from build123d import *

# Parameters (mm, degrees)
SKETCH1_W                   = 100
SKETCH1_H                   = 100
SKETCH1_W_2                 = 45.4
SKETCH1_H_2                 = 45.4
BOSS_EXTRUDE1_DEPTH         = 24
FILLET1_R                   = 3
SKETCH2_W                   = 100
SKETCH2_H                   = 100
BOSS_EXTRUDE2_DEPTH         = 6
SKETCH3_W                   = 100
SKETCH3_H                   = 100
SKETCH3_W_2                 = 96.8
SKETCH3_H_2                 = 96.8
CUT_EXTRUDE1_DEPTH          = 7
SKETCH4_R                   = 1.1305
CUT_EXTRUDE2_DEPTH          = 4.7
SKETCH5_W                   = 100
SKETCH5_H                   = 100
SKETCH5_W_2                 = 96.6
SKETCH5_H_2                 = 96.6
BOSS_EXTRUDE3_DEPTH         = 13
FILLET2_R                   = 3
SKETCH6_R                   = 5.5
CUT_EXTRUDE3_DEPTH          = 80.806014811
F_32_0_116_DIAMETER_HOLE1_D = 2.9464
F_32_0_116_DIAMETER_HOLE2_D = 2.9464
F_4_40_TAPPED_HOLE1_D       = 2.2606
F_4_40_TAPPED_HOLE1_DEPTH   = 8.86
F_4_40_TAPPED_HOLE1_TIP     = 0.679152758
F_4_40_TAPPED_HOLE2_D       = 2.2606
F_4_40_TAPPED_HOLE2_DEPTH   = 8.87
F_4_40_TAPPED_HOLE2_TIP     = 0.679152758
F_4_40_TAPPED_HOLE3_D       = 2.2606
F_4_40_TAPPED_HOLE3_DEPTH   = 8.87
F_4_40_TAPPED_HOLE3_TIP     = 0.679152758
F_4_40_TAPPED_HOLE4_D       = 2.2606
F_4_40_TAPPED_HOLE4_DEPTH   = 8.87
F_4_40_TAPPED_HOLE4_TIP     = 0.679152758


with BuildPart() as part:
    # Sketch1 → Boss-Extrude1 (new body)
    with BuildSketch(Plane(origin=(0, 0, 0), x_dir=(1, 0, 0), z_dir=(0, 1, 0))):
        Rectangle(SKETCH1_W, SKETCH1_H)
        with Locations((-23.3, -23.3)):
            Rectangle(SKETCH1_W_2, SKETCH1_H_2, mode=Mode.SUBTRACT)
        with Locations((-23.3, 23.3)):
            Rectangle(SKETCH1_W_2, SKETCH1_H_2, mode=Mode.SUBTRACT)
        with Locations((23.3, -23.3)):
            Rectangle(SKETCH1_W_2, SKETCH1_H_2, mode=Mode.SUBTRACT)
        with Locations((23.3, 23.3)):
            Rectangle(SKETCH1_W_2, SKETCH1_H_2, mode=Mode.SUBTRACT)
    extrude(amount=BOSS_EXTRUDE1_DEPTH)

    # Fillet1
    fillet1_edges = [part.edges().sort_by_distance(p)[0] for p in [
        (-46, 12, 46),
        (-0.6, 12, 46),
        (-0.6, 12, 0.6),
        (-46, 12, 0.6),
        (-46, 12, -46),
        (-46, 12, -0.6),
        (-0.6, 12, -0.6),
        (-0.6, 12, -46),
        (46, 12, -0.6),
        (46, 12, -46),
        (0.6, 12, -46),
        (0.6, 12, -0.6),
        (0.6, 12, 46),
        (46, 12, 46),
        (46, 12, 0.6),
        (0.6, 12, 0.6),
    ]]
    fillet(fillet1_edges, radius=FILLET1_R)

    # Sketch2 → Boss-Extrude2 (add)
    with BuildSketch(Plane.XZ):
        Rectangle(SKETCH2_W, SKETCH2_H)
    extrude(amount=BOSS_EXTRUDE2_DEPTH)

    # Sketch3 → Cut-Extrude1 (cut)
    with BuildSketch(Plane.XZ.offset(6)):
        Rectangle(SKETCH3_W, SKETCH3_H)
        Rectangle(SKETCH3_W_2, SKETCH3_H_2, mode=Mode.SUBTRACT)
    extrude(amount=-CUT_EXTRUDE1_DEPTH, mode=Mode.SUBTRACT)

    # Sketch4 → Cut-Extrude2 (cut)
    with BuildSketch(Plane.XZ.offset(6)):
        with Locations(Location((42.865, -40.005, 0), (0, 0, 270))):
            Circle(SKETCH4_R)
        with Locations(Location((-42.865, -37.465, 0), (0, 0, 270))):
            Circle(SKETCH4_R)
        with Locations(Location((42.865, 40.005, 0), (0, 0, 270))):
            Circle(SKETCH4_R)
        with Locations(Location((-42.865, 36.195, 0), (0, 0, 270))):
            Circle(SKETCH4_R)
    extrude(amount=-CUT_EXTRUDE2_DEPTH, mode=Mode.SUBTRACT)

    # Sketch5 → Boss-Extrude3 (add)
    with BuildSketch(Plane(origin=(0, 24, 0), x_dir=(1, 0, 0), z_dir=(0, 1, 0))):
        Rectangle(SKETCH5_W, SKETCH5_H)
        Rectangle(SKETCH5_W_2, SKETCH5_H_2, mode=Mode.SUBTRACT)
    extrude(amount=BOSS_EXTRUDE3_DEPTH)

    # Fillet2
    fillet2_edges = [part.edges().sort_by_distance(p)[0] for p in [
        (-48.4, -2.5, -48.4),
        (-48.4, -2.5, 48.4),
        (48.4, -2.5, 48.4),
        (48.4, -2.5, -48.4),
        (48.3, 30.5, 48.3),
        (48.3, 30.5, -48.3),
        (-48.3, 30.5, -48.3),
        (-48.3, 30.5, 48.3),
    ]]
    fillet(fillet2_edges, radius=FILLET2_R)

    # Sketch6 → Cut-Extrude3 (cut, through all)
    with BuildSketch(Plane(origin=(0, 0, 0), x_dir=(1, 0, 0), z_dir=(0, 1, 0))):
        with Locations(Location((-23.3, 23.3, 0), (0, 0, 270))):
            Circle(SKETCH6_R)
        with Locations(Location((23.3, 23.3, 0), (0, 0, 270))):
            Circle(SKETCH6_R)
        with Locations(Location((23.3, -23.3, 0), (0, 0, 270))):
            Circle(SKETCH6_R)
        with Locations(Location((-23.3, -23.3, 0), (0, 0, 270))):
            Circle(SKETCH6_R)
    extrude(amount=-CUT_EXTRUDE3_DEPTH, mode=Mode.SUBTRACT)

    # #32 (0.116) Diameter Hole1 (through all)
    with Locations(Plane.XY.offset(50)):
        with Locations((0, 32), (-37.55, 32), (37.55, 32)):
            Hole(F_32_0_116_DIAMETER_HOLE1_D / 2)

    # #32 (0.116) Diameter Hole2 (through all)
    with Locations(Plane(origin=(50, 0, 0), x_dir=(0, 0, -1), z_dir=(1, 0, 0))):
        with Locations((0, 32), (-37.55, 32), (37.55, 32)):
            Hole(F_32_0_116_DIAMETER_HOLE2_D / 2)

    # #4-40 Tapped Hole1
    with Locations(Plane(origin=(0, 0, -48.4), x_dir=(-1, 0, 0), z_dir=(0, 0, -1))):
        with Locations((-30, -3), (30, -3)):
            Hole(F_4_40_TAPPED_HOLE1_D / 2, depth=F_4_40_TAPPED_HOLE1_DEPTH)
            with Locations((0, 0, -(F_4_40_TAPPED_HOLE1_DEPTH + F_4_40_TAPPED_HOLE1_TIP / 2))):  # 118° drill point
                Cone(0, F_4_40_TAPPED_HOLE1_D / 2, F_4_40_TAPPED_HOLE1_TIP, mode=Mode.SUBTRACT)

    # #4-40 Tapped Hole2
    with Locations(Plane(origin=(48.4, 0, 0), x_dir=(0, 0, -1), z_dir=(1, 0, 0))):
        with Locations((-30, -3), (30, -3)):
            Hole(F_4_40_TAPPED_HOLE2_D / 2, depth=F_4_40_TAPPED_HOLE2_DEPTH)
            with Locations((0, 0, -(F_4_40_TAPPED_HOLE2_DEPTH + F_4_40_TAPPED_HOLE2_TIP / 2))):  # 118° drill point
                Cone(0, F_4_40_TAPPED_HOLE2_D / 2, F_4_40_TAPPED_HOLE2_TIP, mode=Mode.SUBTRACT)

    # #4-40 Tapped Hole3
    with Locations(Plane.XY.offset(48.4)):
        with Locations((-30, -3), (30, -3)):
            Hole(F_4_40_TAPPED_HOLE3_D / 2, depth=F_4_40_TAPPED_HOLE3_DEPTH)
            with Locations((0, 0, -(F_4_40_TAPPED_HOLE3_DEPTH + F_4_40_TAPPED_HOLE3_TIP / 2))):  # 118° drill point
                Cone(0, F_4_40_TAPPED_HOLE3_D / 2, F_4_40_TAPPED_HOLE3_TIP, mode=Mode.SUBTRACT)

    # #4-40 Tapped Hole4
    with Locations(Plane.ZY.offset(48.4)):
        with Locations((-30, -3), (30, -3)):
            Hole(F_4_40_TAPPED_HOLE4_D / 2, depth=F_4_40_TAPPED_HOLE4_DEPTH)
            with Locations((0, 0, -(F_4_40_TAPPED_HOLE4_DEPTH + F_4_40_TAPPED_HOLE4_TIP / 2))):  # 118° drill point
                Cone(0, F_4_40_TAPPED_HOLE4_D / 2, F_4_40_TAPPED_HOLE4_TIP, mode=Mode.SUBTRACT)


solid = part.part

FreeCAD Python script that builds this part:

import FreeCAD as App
import Part
import Sketcher
Q = App.Units.Quantity


def edges_at(feature, points):
    """Names of the edges that pass closest to the given points."""
    edges = feature.Shape.Edges
    near = lambda p: min(range(len(edges)), key=lambda i: edges[i].distToShape(Part.Vertex(*p))[0])
    return sorted({f"Edge{near(p) + 1}" for p in points})


def add_polygon(sketch, points):
    """Adds a closed chain of lines whose ends are joined by coincident constraints."""
    first, n = sketch.GeometryCount, len(points)
    for a, b in zip(points, points[1:] + points[:1]):
        sketch.addGeometry(Part.LineSegment(App.Vector(*a, 0), App.Vector(*b, 0)), False)
    for i in range(n):
        sketch.addConstraint(Sketcher.Constraint("Coincident", first + i, 2, first + (i + 1) % n, 1))

doc = App.newDocument("Part")
body = doc.addObject("PartDesign::Body", "Body")

sketch1 = doc.addObject("Sketcher::SketchObject", "Sketch")
body.addObject(sketch1)
sketch1.AttachmentSupport = (doc.XZ_Plane, [""])
sketch1.MapMode = "FlatFace"
add_polygon(sketch1, [(-50, -50), (-50, 50), (50, 50), (50, -50)])
add_polygon(sketch1, [(-1, 46), (-46, 46), (-46, 1), (-1, 1)])
add_polygon(sketch1, [(46, 46), (1, 46), (1, 1), (46, 1)])
add_polygon(sketch1, [(-1, -1), (-46, -1), (-46, -46), (-1, -46)])
add_polygon(sketch1, [(46, -1), (1, -1), (1, -46), (46, -46)])
sketch1.addConstraint([
    Sketcher.Constraint("Vertical", 0),
    Sketcher.Constraint("Horizontal", 1),
    Sketcher.Constraint("Vertical", 2),
    Sketcher.Constraint("Horizontal", 3),
    Sketcher.Constraint("Horizontal", 4),
    Sketcher.Constraint("Vertical", 5),
    Sketcher.Constraint("Horizontal", 6),
    Sketcher.Constraint("Vertical", 7),
    Sketcher.Constraint("Horizontal", 8),
    Sketcher.Constraint("Vertical", 9),
    Sketcher.Constraint("Horizontal", 10),
    Sketcher.Constraint("Vertical", 11),
    Sketcher.Constraint("Horizontal", 12),
    Sketcher.Constraint("Vertical", 13),
    Sketcher.Constraint("Horizontal", 14),
    Sketcher.Constraint("Vertical", 15),
    Sketcher.Constraint("Horizontal", 16),
    Sketcher.Constraint("Vertical", 17),
    Sketcher.Constraint("Horizontal", 18),
    Sketcher.Constraint("Vertical", 19),
    Sketcher.Constraint("Symmetric", 0, 2, 2, 2, -1, 1),
    Sketcher.Constraint("Symmetric", 10, 2, 12, 2, -1, 1),
    Sketcher.Constraint("Symmetric", 8, 2, 14, 2, -1, 1),
    Sketcher.Constraint("Symmetric", 6, 2, 16, 2, -1, 1),
    Sketcher.Constraint("Symmetric", 4, 2, 18, 2, -1, 1),
    Sketcher.Constraint("Symmetric", 7, 2, 8, 2, -2),
    Sketcher.Constraint("Symmetric", 5, 2, 10, 2, -2),
    Sketcher.Constraint("Equal", 3, 0),
    Sketcher.Constraint("Equal", 18, 5),
    Sketcher.Constraint("DistanceX", 1, 1, 1, 2, Q("100 mm")),
    Sketcher.Constraint("DistanceX", 4, 2, 4, 1, Q("45.4 mm")),
    Sketcher.Constraint("DistanceX", 4, 2, -1, 1, Q("46 mm")),
    Sketcher.Constraint("DistanceY", -1, 1, 4, 2, Q("46 mm")),
])
pad1 = doc.addObject("PartDesign::Pad", "Pad")
body.addObject(pad1)
pad1.Profile = sketch1
pad1.Length = 24
pad1.Reversed = True
doc.recompute()

fillet = doc.addObject("PartDesign::Fillet", "Fillet")
body.addObject(fillet)
fillet.Base = (pad1, edges_at(pad1, [
    (-46, 12, 46),
    (-0.6, 12, 46),
    (-0.6, 12, 0.6),
    (-46, 12, 0.6),
    (-46, 12, -46),
    (-46, 12, -0.6),
    (-0.6, 12, -0.6),
    (-0.6, 12, -46),
    (46, 12, -0.6),
    (46, 12, -46),
    (0.6, 12, -46),
    (0.6, 12, -0.6),
    (0.6, 12, 46),
    (46, 12, 46),
    (46, 12, 0.6),
    (0.6, 12, 0.6),
]))
fillet.Radius = 3

sketch2 = doc.addObject("Sketcher::SketchObject", "Sketch001")
body.addObject(sketch2)
sketch2.AttachmentSupport = (doc.XZ_Plane, [""])
sketch2.MapMode = "FlatFace"
add_polygon(sketch2, [(-50, 50), (-50, -50), (50, -50), (50, 50)])
sketch2.addConstraint([
    Sketcher.Constraint("Vertical", 0),
    Sketcher.Constraint("Horizontal", 1),
    Sketcher.Constraint("Vertical", 2),
    Sketcher.Constraint("Horizontal", 3),
    Sketcher.Constraint("Symmetric", 0, 2, 2, 2, -1, 1),
    Sketcher.Constraint("Equal", 3, 0),
    Sketcher.Constraint("DistanceX", 1, 1, 1, 2, Q("100 mm")),
])
pad2 = doc.addObject("PartDesign::Pad", "Pad001")
body.addObject(pad2)
pad2.Profile = sketch2
pad2.Length = 6

sketch3 = doc.addObject("Sketcher::SketchObject", "Sketch002")
body.addObject(sketch3)
sketch3.AttachmentSupport = (doc.XZ_Plane, [""])
sketch3.MapMode = "FlatFace"
sketch3.AttachmentOffset = App.Placement(App.Vector(0, 0, 6), App.Rotation())
add_polygon(sketch3, [(-50, 50), (-50, -50), (50, -50), (50, 50)])
add_polygon(sketch3, [(48, -48), (-48, -48), (-48, 48), (48, 48)])
sketch3.addConstraint([
    Sketcher.Constraint("Vertical", 0),
    Sketcher.Constraint("Horizontal", 1),
    Sketcher.Constraint("Vertical", 2),
    Sketcher.Constraint("Horizontal", 3),
    Sketcher.Constraint("Horizontal", 4),
    Sketcher.Constraint("Vertical", 5),
    Sketcher.Constraint("Horizontal", 6),
    Sketcher.Constraint("Vertical", 7),
    Sketcher.Constraint("Symmetric", 0, 2, 2, 2, -1, 1),
    Sketcher.Constraint("Symmetric", 4, 2, 6, 2, -1, 1),
    Sketcher.Constraint("Equal", 3, 0),
    Sketcher.Constraint("Equal", 6, 5),
    Sketcher.Constraint("DistanceX", 1, 1, 1, 2, Q("100 mm")),
    Sketcher.Constraint("DistanceX", 4, 2, 4, 1, Q("96.8 mm")),
])
pocket1 = doc.addObject("PartDesign::Pocket", "Pocket")
body.addObject(pocket1)
pocket1.Profile = sketch3
pocket1.Length = 7

sketch4 = doc.addObject("Sketcher::SketchObject", "Sketch003")
body.addObject(sketch4)
sketch4.AttachmentSupport = (doc.XZ_Plane, [""])
sketch4.MapMode = "FlatFace"
sketch4.AttachmentOffset = App.Placement(App.Vector(0, 0, 6), App.Rotation())
sketch4.addGeometry([
    Part.Circle(App.Vector(42.9, -40, 0), App.Vector(0, 0, 1), 1.1),
    Part.Circle(App.Vector(-42.9, -37.5, 0), App.Vector(0, 0, 1), 1.1),
    Part.Circle(App.Vector(42.9, 40, 0), App.Vector(0, 0, 1), 1.1),
    Part.Circle(App.Vector(-42.9, 36.2, 0), App.Vector(0, 0, 1), 1.1),
], False)
sketch4.addConstraint([
    Sketcher.Constraint("Equal", 0, 1),
    Sketcher.Constraint("Equal", 1, 2),
    Sketcher.Constraint("Equal", 2, 3),
    Sketcher.Constraint("Symmetric", 0, 3, 2, 3, -1),
    Sketcher.Constraint("Vertical", 1, 3, 3, 3),
    Sketcher.Constraint("Diameter", 0, Q("2.261 mm")),
    Sketcher.Constraint("DistanceY", 0, 3, 3, 3, Q("76.2 mm")),
    Sketcher.Constraint("DistanceX", 1, 3, 0, 3, Q("85.73 mm")),
    Sketcher.Constraint("DistanceY", 0, 3, 1, 3, Q("2.54 mm")),
    Sketcher.Constraint("DistanceY", 0, 3, 2, 3, Q("80.01 mm")),
    Sketcher.Constraint("DistanceX", -1, 1, 0, 3, Q("42.865 mm")),
])
pocket2 = doc.addObject("PartDesign::Pocket", "Pocket001")
body.addObject(pocket2)
pocket2.Profile = sketch4
pocket2.Length = 4.7

sketch5 = doc.addObject("Sketcher::SketchObject", "Sketch004")
body.addObject(sketch5)
sketch5.AttachmentSupport = (doc.XZ_Plane, [""])
sketch5.MapMode = "FlatFace"
sketch5.AttachmentOffset = App.Placement(App.Vector(0, 0, -24), App.Rotation())
add_polygon(sketch5, [(-50, -50), (-50, 50), (50, 50), (50, -50)])
add_polygon(sketch5, [(48, 48), (-48, 48), (-48, -48), (48, -48)])
sketch5.addConstraint([
    Sketcher.Constraint("Vertical", 0),
    Sketcher.Constraint("Horizontal", 1),
    Sketcher.Constraint("Vertical", 2),
    Sketcher.Constraint("Horizontal", 3),
    Sketcher.Constraint("Horizontal", 4),
    Sketcher.Constraint("Vertical", 5),
    Sketcher.Constraint("Horizontal", 6),
    Sketcher.Constraint("Vertical", 7),
    Sketcher.Constraint("Symmetric", 0, 2, 2, 2, -1, 1),
    Sketcher.Constraint("Symmetric", 4, 2, 6, 2, -1, 1),
    Sketcher.Constraint("Equal", 3, 0),
    Sketcher.Constraint("Equal", 6, 5),
    Sketcher.Constraint("DistanceX", 1, 1, 1, 2, Q("100 mm")),
    Sketcher.Constraint("DistanceX", 4, 2, 4, 1, Q("96.6 mm")),
])
pad3 = doc.addObject("PartDesign::Pad", "Pad002")
body.addObject(pad3)
pad3.Profile = sketch5
pad3.Length = 13
pad3.Reversed = True
doc.recompute()

fillet2 = doc.addObject("PartDesign::Fillet", "Fillet001")
body.addObject(fillet2)
fillet2.Base = (pad3, edges_at(pad3, [
    (-48.4, -2.5, -48.4),
    (-48.4, -2.5, 48.4),
    (48.4, -2.5, 48.4),
    (48.4, -2.5, -48.4),
    (48.3, 30.5, 48.3),
    (48.3, 30.5, -48.3),
    (-48.3, 30.5, -48.3),
    (-48.3, 30.5, 48.3),
]))
fillet2.Radius = 3

sketch6 = doc.addObject("Sketcher::SketchObject", "Sketch005")
body.addObject(sketch6)
sketch6.AttachmentSupport = (doc.XZ_Plane, [""])
sketch6.MapMode = "FlatFace"
sketch6.addGeometry([
    Part.Circle(App.Vector(-23, -23, 0), App.Vector(0, 0, 1), 6),
    Part.Circle(App.Vector(23, -23, 0), App.Vector(0, 0, 1), 6),
    Part.Circle(App.Vector(23, 23, 0), App.Vector(0, 0, 1), 6),
    Part.Circle(App.Vector(-23, 23, 0), App.Vector(0, 0, 1), 6),
], False)
sketch6.addConstraint([
    Sketcher.Constraint("Equal", 0, 1),
    Sketcher.Constraint("Equal", 1, 2),
    Sketcher.Constraint("Equal", 2, 3),
    Sketcher.Constraint("Symmetric", 0, 3, 2, 3, -1, 1),
    Sketcher.Constraint("Symmetric", 1, 3, 3, 3, -1, 1),
    Sketcher.Constraint("Symmetric", 0, 3, 1, 3, -2),
    Sketcher.Constraint("Diameter", 0, Q("11 mm")),
    Sketcher.Constraint("DistanceX", 0, 3, -1, 1, Q("23.3 mm")),
    Sketcher.Constraint("DistanceY", 0, 3, -1, 1, Q("23.3 mm")),
])
pocket3 = doc.addObject("PartDesign::Pocket", "Pocket002")
body.addObject(pocket3)
pocket3.Profile = sketch6
pocket3.Type = "ThroughAll"
pocket3.Reversed = True

sketch7 = doc.addObject("Sketcher::SketchObject", "Sketch006")
body.addObject(sketch7)
sketch7.AttachmentSupport = (doc.XY_Plane, [""])
sketch7.MapMode = "FlatFace"
sketch7.AttachmentOffset = App.Placement(App.Vector(0, 0, 50), App.Rotation())
sketch7.addGeometry([
    Part.Circle(App.Vector(0, 32, 0), App.Vector(0, 0, 1), 1.5),
    Part.Circle(App.Vector(-37.5, 32, 0), App.Vector(0, 0, 1), 1.5),
    Part.Circle(App.Vector(37.5, 32, 0), App.Vector(0, 0, 1), 1.5),
], False)
sketch7.addConstraint([
    Sketcher.Constraint("Equal", 0, 1),
    Sketcher.Constraint("Equal", 1, 2),
    Sketcher.Constraint("Symmetric", 1, 3, 2, 3, -2),
    Sketcher.Constraint("PointOnObject", 0, 3, -2),
    Sketcher.Constraint("Horizontal", 0, 3, 1, 3),
    Sketcher.Constraint("DistanceY", -1, 1, 0, 3, Q("32 mm")),
    Sketcher.Constraint("Diameter", 0, Q("2.9464 mm")),
    Sketcher.Constraint("DistanceX", 1, 3, 2, 3, Q("75.1 mm")),
])
doc.recompute()
hole = doc.addObject("PartDesign::Hole", "Hole")
body.addObject(hole)
hole.Profile = sketch7
hole.ThreadType = "None"
hole.Diameter = 2.9464
hole.DepthType = "ThroughAll"

sketch8 = doc.addObject("Sketcher::SketchObject", "Sketch007")
body.addObject(sketch8)
sketch8.AttachmentSupport = (doc.YZ_Plane, [""])
sketch8.MapMode = "FlatFace"
sketch8.AttachmentOffset = App.Placement(App.Vector(0, 0, 50), App.Rotation())
sketch8.addGeometry([
    Part.Circle(App.Vector(32, 0, 0), App.Vector(0, 0, 1), 1.5),
    Part.Circle(App.Vector(32, 37.5, 0), App.Vector(0, 0, 1), 1.5),
    Part.Circle(App.Vector(32, -37.5, 0), App.Vector(0, 0, 1), 1.5),
], False)
sketch8.addConstraint([
    Sketcher.Constraint("Equal", 0, 1),
    Sketcher.Constraint("Equal", 1, 2),
    Sketcher.Constraint("Symmetric", 1, 3, 2, 3, -1),
    Sketcher.Constraint("PointOnObject", 0, 3, -1),
    Sketcher.Constraint("Vertical", 0, 3, 1, 3),
    Sketcher.Constraint("DistanceX", -1, 1, 0, 3, Q("32 mm")),
    Sketcher.Constraint("Diameter", 0, Q("2.9464 mm")),
    Sketcher.Constraint("DistanceY", 2, 3, 1, 3, Q("75.1 mm")),
])
doc.recompute()
hole2 = doc.addObject("PartDesign::Hole", "Hole001")
body.addObject(hole2)
hole2.Profile = sketch8
hole2.ThreadType = "None"
hole2.Diameter = 2.9464
hole2.DepthType = "ThroughAll"

sketch9 = doc.addObject("Sketcher::SketchObject", "Sketch008")
body.addObject(sketch9)
sketch9.AttachmentSupport = (doc.XY_Plane, [""])
sketch9.MapMode = "FlatFace"
sketch9.AttachmentOffset = App.Placement(App.Vector(0, 0, -48.4), App.Rotation())
sketch9.addGeometry([
    Part.Circle(App.Vector(30, -3, 0), App.Vector(0, 0, 1), 1.1),
    Part.Circle(App.Vector(-30, -3, 0), App.Vector(0, 0, 1), 1.1),
], False)
sketch9.addConstraint([
    Sketcher.Constraint("Equal", 0, 1),
    Sketcher.Constraint("Symmetric", 0, 3, 1, 3, -2),
    Sketcher.Constraint("DistanceX", -1, 1, 0, 3, Q("30 mm")),
    Sketcher.Constraint("DistanceY", 0, 3, -1, 1, Q("3 mm")),
    Sketcher.Constraint("Diameter", 0, Q("2.2606 mm")),
])
doc.recompute()
hole3 = doc.addObject("PartDesign::Hole", "Hole002")
body.addObject(hole3)
hole3.Profile = sketch9
hole3.ThreadType = "None"
hole3.Diameter = 2.2606
hole3.DepthType = "Dimension"
hole3.Depth = 8.86
hole3.DrillPoint = "Angled"
hole3.DrillPointAngle = 118
hole3.Reversed = True

sketch10 = doc.addObject("Sketcher::SketchObject", "Sketch009")
body.addObject(sketch10)
sketch10.AttachmentSupport = (doc.YZ_Plane, [""])
sketch10.MapMode = "FlatFace"
sketch10.AttachmentOffset = App.Placement(App.Vector(0, 0, 48.4), App.Rotation())
sketch10.addGeometry([
    Part.Circle(App.Vector(-3, 30, 0), App.Vector(0, 0, 1), 1.1),
    Part.Circle(App.Vector(-3, -30, 0), App.Vector(0, 0, 1), 1.1),
], False)
sketch10.addConstraint([
    Sketcher.Constraint("Equal", 0, 1),
    Sketcher.Constraint("Symmetric", 0, 3, 1, 3, -1),
    Sketcher.Constraint("DistanceX", 0, 3, -1, 1, Q("3 mm")),
    Sketcher.Constraint("DistanceY", -1, 1, 0, 3, Q("30 mm")),
    Sketcher.Constraint("Diameter", 0, Q("2.2606 mm")),
])
doc.recompute()
hole4 = doc.addObject("PartDesign::Hole", "Hole003")
body.addObject(hole4)
hole4.Profile = sketch10
hole4.ThreadType = "None"
hole4.Diameter = 2.2606
hole4.DepthType = "Dimension"
hole4.Depth = 8.87
hole4.DrillPoint = "Angled"
hole4.DrillPointAngle = 118

sketch11 = doc.addObject("Sketcher::SketchObject", "Sketch010")
body.addObject(sketch11)
sketch11.AttachmentSupport = (doc.XY_Plane, [""])
sketch11.MapMode = "FlatFace"
sketch11.AttachmentOffset = App.Placement(App.Vector(0, 0, 48.4), App.Rotation())
sketch11.addGeometry([
    Part.Circle(App.Vector(-30, -3, 0), App.Vector(0, 0, 1), 1.1),
    Part.Circle(App.Vector(30, -3, 0), App.Vector(0, 0, 1), 1.1),
], False)
sketch11.addConstraint([
    Sketcher.Constraint("Equal", 0, 1),
    Sketcher.Constraint("Symmetric", 0, 3, 1, 3, -2),
    Sketcher.Constraint("DistanceX", 0, 3, -1, 1, Q("30 mm")),
    Sketcher.Constraint("DistanceY", 0, 3, -1, 1, Q("3 mm")),
    Sketcher.Constraint("Diameter", 0, Q("2.2606 mm")),
])
doc.recompute()
hole5 = doc.addObject("PartDesign::Hole", "Hole004")
body.addObject(hole5)
hole5.Profile = sketch11
hole5.ThreadType = "None"
hole5.Diameter = 2.2606
hole5.DepthType = "Dimension"
hole5.Depth = 8.87
hole5.DrillPoint = "Angled"
hole5.DrillPointAngle = 118

sketch12 = doc.addObject("Sketcher::SketchObject", "Sketch011")
body.addObject(sketch12)
sketch12.AttachmentSupport = (doc.YZ_Plane, [""])
sketch12.MapMode = "FlatFace"
sketch12.AttachmentOffset = App.Placement(App.Vector(0, 0, -48.4), App.Rotation())
sketch12.addGeometry([
    Part.Circle(App.Vector(-3, -30, 0), App.Vector(0, 0, 1), 1.1),
    Part.Circle(App.Vector(-3, 30, 0), App.Vector(0, 0, 1), 1.1),
], False)
sketch12.addConstraint([
    Sketcher.Constraint("Equal", 0, 1),
    Sketcher.Constraint("Symmetric", 0, 3, 1, 3, -1),
    Sketcher.Constraint("DistanceX", 0, 3, -1, 1, Q("3 mm")),
    Sketcher.Constraint("DistanceY", 0, 3, -1, 1, Q("30 mm")),
    Sketcher.Constraint("Diameter", 0, Q("2.2606 mm")),
])
doc.recompute()
hole6 = doc.addObject("PartDesign::Hole", "Hole005")
body.addObject(hole6)
hole6.Profile = sketch12
hole6.ThreadType = "None"
hole6.Diameter = 2.2606
hole6.DepthType = "Dimension"
hole6.Depth = 8.87
hole6.DrillPoint = "Angled"
hole6.DrillPointAngle = 118
hole6.Reversed = True

doc.recompute()
